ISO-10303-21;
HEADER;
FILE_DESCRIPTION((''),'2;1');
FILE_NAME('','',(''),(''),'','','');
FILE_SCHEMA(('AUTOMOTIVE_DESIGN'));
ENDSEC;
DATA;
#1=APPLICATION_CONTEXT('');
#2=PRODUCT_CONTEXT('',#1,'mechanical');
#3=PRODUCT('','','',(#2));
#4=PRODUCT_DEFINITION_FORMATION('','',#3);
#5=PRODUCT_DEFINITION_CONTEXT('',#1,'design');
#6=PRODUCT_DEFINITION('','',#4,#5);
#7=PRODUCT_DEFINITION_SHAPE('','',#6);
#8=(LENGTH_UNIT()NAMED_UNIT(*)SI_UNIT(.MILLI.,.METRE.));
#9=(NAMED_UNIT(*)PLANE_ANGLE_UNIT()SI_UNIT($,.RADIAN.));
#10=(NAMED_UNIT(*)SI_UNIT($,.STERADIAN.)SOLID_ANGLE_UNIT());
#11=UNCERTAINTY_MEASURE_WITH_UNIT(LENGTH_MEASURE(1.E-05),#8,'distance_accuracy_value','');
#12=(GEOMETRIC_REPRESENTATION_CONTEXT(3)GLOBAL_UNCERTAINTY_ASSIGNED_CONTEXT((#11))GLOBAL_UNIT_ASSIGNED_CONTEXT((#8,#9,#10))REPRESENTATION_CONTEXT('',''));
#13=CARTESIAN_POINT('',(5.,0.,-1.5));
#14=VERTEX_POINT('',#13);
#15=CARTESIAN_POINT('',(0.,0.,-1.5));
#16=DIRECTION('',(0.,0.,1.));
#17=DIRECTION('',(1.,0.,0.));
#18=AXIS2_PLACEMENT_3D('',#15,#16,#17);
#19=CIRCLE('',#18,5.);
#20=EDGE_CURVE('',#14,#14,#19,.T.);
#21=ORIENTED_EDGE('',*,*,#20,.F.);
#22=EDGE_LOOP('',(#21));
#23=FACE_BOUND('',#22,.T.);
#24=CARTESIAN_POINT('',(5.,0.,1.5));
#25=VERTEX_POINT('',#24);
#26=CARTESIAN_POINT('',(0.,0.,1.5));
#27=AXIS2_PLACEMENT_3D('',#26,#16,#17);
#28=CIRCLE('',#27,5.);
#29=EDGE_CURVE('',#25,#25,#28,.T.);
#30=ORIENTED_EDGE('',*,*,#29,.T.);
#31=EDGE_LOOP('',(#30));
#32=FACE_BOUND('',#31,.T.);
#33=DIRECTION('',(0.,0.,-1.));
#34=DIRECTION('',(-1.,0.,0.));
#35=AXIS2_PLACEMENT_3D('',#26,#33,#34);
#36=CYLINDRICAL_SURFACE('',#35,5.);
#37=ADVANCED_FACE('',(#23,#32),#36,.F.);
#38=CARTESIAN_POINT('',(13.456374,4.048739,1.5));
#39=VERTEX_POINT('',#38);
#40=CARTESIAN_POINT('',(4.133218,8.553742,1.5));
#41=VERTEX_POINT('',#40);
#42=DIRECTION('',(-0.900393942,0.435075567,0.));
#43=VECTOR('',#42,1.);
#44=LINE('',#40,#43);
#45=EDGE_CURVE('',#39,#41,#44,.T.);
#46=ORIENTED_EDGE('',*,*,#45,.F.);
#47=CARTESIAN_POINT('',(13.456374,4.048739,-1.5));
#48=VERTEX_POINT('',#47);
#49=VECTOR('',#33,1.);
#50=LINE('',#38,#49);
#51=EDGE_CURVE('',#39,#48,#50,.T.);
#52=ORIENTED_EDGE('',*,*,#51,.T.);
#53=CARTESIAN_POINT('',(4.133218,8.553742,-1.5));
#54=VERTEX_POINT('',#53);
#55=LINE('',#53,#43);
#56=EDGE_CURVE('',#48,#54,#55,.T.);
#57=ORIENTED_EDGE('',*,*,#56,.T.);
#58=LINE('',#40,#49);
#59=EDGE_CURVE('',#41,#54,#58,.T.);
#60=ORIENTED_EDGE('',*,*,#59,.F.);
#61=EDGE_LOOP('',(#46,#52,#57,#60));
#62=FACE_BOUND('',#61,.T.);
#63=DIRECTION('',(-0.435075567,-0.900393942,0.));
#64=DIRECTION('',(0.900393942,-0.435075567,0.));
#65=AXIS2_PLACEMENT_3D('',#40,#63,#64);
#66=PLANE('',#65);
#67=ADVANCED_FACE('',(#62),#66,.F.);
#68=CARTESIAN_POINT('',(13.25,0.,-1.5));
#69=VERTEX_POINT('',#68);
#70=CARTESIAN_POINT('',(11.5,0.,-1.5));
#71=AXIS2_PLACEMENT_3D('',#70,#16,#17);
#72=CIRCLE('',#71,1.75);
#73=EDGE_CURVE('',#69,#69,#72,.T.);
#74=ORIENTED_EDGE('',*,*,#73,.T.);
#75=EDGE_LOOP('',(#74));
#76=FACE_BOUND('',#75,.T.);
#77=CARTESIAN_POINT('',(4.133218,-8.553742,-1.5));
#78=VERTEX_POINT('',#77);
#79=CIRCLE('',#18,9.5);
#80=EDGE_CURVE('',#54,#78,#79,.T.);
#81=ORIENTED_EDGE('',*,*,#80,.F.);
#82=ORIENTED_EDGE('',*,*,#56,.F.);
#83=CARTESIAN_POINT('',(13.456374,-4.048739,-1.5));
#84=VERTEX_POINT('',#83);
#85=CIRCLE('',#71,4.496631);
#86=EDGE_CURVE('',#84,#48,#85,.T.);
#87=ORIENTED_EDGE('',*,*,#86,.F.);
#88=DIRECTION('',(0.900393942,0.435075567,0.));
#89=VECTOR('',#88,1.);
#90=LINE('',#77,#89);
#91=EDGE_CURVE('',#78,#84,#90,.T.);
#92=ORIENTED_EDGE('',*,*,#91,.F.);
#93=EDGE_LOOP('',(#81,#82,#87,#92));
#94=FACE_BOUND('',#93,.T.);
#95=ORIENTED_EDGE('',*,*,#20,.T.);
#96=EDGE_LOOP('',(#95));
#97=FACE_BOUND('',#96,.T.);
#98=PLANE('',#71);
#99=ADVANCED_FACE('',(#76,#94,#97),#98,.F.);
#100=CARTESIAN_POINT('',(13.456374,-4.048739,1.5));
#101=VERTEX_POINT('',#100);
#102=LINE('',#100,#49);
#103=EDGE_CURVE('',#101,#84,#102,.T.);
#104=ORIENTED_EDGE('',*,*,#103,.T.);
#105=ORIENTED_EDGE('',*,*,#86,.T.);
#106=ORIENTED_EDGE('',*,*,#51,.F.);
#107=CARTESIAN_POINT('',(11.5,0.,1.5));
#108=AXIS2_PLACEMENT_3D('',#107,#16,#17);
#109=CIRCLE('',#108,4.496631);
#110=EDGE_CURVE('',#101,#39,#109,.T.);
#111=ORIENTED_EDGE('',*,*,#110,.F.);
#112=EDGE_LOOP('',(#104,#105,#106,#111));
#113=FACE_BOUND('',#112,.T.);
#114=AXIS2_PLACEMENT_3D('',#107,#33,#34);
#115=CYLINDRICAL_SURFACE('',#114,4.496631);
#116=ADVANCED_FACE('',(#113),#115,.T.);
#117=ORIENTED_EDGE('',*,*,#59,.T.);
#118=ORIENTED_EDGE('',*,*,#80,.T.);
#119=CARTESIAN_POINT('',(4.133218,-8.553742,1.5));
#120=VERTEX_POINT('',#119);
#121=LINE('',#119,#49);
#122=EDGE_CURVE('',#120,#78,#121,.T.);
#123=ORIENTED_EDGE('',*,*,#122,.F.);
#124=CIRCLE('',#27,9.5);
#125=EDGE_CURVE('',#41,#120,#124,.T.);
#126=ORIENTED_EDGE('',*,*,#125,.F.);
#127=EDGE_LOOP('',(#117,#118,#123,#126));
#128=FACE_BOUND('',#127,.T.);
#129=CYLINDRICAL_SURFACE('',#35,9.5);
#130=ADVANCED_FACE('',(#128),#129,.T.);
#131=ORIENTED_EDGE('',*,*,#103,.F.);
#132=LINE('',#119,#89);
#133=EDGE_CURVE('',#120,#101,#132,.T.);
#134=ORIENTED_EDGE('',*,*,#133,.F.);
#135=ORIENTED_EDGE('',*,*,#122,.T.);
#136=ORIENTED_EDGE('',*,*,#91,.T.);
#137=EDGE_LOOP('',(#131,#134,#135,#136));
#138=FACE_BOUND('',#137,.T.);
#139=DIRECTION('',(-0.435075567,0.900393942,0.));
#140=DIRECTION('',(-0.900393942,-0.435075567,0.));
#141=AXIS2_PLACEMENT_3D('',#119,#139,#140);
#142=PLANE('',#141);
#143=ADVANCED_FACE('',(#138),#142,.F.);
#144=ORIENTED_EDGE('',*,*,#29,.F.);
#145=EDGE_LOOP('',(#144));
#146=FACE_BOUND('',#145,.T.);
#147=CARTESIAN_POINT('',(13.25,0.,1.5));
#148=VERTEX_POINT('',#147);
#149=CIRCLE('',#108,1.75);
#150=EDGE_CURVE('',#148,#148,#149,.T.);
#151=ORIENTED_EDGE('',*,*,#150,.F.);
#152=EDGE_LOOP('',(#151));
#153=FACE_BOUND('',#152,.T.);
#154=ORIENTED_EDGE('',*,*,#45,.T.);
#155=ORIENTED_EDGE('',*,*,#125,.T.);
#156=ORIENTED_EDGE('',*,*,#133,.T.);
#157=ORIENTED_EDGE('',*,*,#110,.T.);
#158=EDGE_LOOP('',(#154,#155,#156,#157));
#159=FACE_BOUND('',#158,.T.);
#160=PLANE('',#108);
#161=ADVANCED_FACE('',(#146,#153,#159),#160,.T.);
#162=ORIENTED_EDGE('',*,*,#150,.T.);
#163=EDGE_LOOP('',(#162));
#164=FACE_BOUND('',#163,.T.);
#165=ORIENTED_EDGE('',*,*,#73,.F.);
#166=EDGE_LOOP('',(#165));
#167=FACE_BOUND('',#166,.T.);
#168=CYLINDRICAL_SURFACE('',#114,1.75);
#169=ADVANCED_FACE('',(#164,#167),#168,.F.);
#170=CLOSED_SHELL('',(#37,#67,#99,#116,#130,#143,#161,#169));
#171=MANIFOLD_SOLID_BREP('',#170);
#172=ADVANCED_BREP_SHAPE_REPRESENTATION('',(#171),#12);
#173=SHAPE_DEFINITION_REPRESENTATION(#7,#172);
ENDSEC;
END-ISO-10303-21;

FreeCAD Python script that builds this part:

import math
import FreeCAD as App
import Part
import Sketcher

V = App.Vector
Q = App.Units.Quantity

doc = App.newDocument("Part")
body = doc.addObject("PartDesign::Body", "Body")

# Sketch on XY plane
sketch1 = doc.addObject("Sketcher::SketchObject", "Sketch")
body.addObject(sketch1)
sketch1.AttachmentSupport = (doc.XY_Plane, [""])
sketch1.MapMode = "FlatFace"
sketch1.addGeometry(Part.LineSegment(V(13.5, 4, 0), V(4.1, 8.6, 0)), False)
sketch1.addGeometry(Part.ArcOfCircle(Part.Circle(V(0, 0, 0), V(0, 0, 1), 9.5), math.radians(64), math.radians(296)), False)
sketch1.addGeometry(Part.LineSegment(V(4.1, -8.6, 0), V(13.5, -4, 0)), False)
sketch1.addGeometry(Part.ArcOfCircle(Part.Circle(V(11.5, 0, 0), V(0, 0, 1), 4.5), math.radians(-64), math.radians(64)), False)
sketch1.addGeometry(Part.Circle(V(11.5, 0, 0), V(0, 0, 1), 1.8), False)
sketch1.addGeometry(Part.Circle(V(0, 0, 0), V(0, 0, 1), 5), False)
sketch1.addConstraint(Sketcher.Constraint("Tangent", 0, 2, 1, 1))
sketch1.addConstraint(Sketcher.Constraint("Tangent", 1, 2, 2, 1))
sketch1.addConstraint(Sketcher.Constraint("Tangent", 2, 2, 3, 1))
sketch1.addConstraint(Sketcher.Constraint("Tangent", 3, 2, 0, 1))
sketch1.addConstraint(Sketcher.Constraint("Coincident", 1, 3, -1, 1))
sketch1.addConstraint(Sketcher.Constraint("Coincident", 5, 3, -1, 1))
sketch1.addConstraint(Sketcher.Constraint("Coincident", 4, 3, 3, 3))
sketch1.addConstraint(Sketcher.Constraint("PointOnObject", 3, 3, -1))
sketch1.addConstraint(Sketcher.Constraint("Diameter", 5, Q("10 mm")))
sketch1.addConstraint(Sketcher.Constraint("Diameter", 4, Q("3.5 mm")))
sketch1.addConstraint(Sketcher.Constraint("Radius", 1, Q("9.5 mm")))
sketch1.addConstraint(Sketcher.Constraint("DistanceX", -1, 1, 3, 3, Q("11.5 mm")))
sketch1.addConstraint(Sketcher.Constraint("Radius", 3, Q("4.496631 mm")))
pad1 = doc.addObject("PartDesign::Pad", "Pad")
body.addObject(pad1)
pad1.Profile = sketch1
pad1.Length = 3
pad1.Midplane = True

doc.recompute()
